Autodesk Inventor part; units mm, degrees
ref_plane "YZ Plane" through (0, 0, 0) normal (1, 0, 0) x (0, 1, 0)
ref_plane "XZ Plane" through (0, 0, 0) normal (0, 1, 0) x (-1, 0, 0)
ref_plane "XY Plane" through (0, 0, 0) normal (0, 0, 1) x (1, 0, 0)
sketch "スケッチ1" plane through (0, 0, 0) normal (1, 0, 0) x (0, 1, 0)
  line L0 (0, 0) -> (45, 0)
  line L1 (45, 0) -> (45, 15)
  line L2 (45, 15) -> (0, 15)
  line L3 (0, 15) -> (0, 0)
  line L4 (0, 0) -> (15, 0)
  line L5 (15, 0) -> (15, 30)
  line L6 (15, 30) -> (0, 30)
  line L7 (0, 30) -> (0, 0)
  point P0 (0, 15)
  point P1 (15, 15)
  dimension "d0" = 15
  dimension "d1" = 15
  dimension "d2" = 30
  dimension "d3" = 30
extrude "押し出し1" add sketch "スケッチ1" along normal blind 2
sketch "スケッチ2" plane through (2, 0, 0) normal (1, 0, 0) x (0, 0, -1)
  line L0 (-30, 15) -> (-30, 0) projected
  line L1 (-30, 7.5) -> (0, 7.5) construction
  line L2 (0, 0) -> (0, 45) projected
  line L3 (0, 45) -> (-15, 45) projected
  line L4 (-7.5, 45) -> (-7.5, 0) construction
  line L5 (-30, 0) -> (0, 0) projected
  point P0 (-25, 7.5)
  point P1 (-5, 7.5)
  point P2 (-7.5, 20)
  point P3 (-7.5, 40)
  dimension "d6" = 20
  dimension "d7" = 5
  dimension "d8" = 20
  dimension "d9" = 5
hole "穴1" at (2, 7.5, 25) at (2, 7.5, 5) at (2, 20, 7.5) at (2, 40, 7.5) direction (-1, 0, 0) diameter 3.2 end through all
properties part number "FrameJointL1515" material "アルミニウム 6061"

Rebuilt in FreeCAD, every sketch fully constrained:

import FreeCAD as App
import Part
import Sketcher
from FreeCAD import Vector
Q = App.Units.Quantity

doc = App.newDocument("Part")
body = doc.addObject("PartDesign::Body", "Body")

# Sketch on YZ plane
sketch1 = body.newObject("Sketcher::SketchObject", "Sketch")
sketch1.AttachmentSupport = (doc.getObject("YZ_Plane"), [""])
sketch1.MapMode = "FlatFace"
sketch1.addGeometry([
    Part.LineSegment(Vector(0, 0, 0), Vector(45, 0, 0)),  # 0
    Part.LineSegment(Vector(45, 0, 0), Vector(45, 15, 0)),  # 1
    Part.LineSegment(Vector(45, 15, 0), Vector(15, 15, 0)),  # 2
    Part.LineSegment(Vector(15, 15, 0), Vector(15, 30, 0)),  # 3
    Part.LineSegment(Vector(15, 30, 0), Vector(0, 30, 0)),  # 4
    Part.LineSegment(Vector(0, 30, 0), Vector(0, 0, 0)),  # 5
], False)
sketch1.addConstraint([
    Sketcher.Constraint("Coincident", 0, 2, 1, 1),
    Sketcher.Constraint("Coincident", 1, 2, 2, 1),
    Sketcher.Constraint("Coincident", 2, 2, 3, 1),
    Sketcher.Constraint("Coincident", 3, 2, 4, 1),
    Sketcher.Constraint("Coincident", 4, 2, 5, 1),
    Sketcher.Constraint("Coincident", 5, 2, 0, 1),
    Sketcher.Constraint("Horizontal", 0),
    Sketcher.Constraint("Vertical", 1),
    Sketcher.Constraint("Horizontal", 2),
    Sketcher.Constraint("Vertical", 3),
    Sketcher.Constraint("Horizontal", 4),
    Sketcher.Constraint("Vertical", 5),
    Sketcher.Constraint("Coincident", 5, 2, -1, 1),
    Sketcher.Constraint("Equal", 4, 1),
    Sketcher.Constraint("Equal", 1, 3),
    Sketcher.Constraint("Equal", 2, 5),
    Sketcher.Constraint("DistanceX", 2, 2, 2, 1, Q("30 mm")),
])
pad1 = body.newObject("PartDesign::Pad", "Pad")
pad1.Profile = sketch1
pad1.Length = 2

# Sketch on YZ plane
sketch2 = body.newObject("Sketcher::SketchObject", "Sketch001")
sketch2.AttachmentSupport = (doc.getObject("YZ_Plane"), [""])
sketch2.MapMode = "FlatFace"
sketch2.AttachmentOffset = App.Placement(Vector(0, 0, 2), App.Rotation())
sketch2.addGeometry([
    Part.Circle(Vector(7.5, 25, 0), Vector(0, 0, 1), 1.6),
    Part.Circle(Vector(7.5, 5, 0), Vector(0, 0, 1), 1.6),
    Part.Circle(Vector(20, 7.5, 0), Vector(0, 0, 1), 1.6),
    Part.Circle(Vector(40, 7.5, 0), Vector(0, 0, 1), 1.6),
], False)
sketch2.addConstraint([
    Sketcher.Constraint("Equal", 0, 1),
    Sketcher.Constraint("Equal", 1, 2),
    Sketcher.Constraint("Equal", 2, 3),
    Sketcher.Constraint("Horizontal", 2, 3, 3, 3),
    Sketcher.Constraint("Vertical", 0, 3, 1, 3),
    Sketcher.Constraint("Diameter", 0, Q("3.2 mm")),
    Sketcher.Constraint("DistanceY", -1, 1, 0, 3, Q("25 mm")),
    Sketcher.Constraint("DistanceY", -1, 1, 1, 3, Q("5 mm")),
    Sketcher.Constraint("DistanceX", -1, 1, 2, 3, Q("20 mm")),
    Sketcher.Constraint("DistanceX", -1, 1, 3, 3, Q("40 mm")),
    Sketcher.Constraint("DistanceX", -1, 1, 0, 3, Q("7.5 mm")),
    Sketcher.Constraint("DistanceY", -1, 1, 2, 3, Q("7.5 mm")),
])
doc.recompute()
hole = body.newObject("PartDesign::Hole", "Hole")
hole.Profile = sketch2
hole.ThreadType = "None"
hole.Diameter = 3.2
hole.DepthType = "ThroughAll"

doc.recompute()
